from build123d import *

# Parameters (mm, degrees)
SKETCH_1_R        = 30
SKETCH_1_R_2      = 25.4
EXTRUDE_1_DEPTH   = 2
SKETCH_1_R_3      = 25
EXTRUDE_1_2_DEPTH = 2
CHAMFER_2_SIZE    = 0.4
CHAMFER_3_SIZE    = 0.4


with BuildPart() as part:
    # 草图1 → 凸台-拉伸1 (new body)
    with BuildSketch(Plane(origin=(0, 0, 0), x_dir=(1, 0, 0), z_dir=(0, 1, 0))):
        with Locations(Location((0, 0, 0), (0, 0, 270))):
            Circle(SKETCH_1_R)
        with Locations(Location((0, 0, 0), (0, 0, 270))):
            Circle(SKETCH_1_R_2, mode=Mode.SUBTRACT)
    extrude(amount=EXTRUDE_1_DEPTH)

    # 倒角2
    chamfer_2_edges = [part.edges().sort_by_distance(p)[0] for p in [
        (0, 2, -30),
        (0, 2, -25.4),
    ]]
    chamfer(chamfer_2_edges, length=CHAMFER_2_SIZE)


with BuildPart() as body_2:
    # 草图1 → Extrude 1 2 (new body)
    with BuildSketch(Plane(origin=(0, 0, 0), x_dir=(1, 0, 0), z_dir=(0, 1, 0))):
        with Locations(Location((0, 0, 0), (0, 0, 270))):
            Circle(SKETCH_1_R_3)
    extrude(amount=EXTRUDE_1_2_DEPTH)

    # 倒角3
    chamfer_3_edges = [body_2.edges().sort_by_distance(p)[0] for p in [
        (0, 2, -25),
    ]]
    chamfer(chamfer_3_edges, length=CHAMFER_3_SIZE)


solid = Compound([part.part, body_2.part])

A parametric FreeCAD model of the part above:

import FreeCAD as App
import Part
import Sketcher

V = App.Vector
Q = App.Units.Quantity


def edges_at(feature, points):
    """Names of the edges that pass closest to the given points."""
    edges = feature.Shape.Edges
    near = lambda p: min(range(len(edges)), key=lambda i: edges[i].distToShape(Part.Vertex(*p))[0])
    return sorted({f"Edge{near(p) + 1}" for p in points})

doc = App.newDocument("Part")
params = doc.addObject("Spreadsheet::Sheet", "Params")
for row, (alias, value) in enumerate([
    ("sketch1_diameter", "60 mm"),
    ("sketch1_diameter2", "50.8 mm"),
    ("pad1_length", "2 mm"),
    ("chamfer_size", "0.4 mm"),
    ("sketch2_diameter", "50 mm"),
    ("pad2_length", "2 mm"),
    ("chamfer2_size", "0.4 mm"),
], start=1):
    params.set(f"A{row}", alias)
    params.set(f"B{row}", "=" + value)
    params.setAlias(f"B{row}", alias)

body = doc.addObject("PartDesign::Body", "Body")

# Sketch on XZ plane
sketch1 = doc.addObject("Sketcher::SketchObject", "Sketch")
body.addObject(sketch1)
sketch1.AttachmentSupport = (doc.XZ_Plane, [""])
sketch1.MapMode = "FlatFace"
sketch1.addGeometry(Part.Circle(V(0, 0, 0), V(0, 0, 1), 30), False)
sketch1.addGeometry(Part.Circle(V(0, 0, 0), V(0, 0, 1), 25), False)
sketch1.addConstraint(Sketcher.Constraint("Coincident", 0, 3, -1, 1))
sketch1.addConstraint(Sketcher.Constraint("Coincident", 1, 3, -1, 1))
sketch1.addConstraint(Sketcher.Constraint("Diameter", 0, Q("60 mm")))
sketch1.addConstraint(Sketcher.Constraint("Diameter", 1, Q("50.8 mm")))
sketch1.setExpression("Constraints[2]", "Params.sketch1_diameter")
sketch1.setExpression("Constraints[3]", "Params.sketch1_diameter2")
pad1 = doc.addObject("PartDesign::Pad", "Pad")
body.addObject(pad1)
pad1.Profile = sketch1
pad1.setExpression("Length", "Params.pad1_length")
pad1.Reversed = True
doc.recompute()

chamfer = doc.addObject("PartDesign::Chamfer", "Chamfer")
body.addObject(chamfer)
chamfer.Base = (pad1, edges_at(pad1, [(0, 2, -30), (0, 2, -25.4)]))
chamfer.setExpression("Size", "Params.chamfer_size")
body2 = doc.addObject("PartDesign::Body", "Body001")

# Sketch on XZ plane
sketch2 = doc.addObject("Sketcher::SketchObject", "Sketch001")
body2.addObject(sketch2)
sketch2.AttachmentSupport = (doc.getObject("XZ_Plane001"), [""])
sketch2.MapMode = "FlatFace"
sketch2.addGeometry(Part.Circle(V(0, 0, 0), V(0, 0, 1), 25), False)
sketch2.addConstraint(Sketcher.Constraint("Coincident", 0, 3, -1, 1))
sketch2.addConstraint(Sketcher.Constraint("Diameter", 0, Q("50 mm")))
sketch2.setExpression("Constraints[1]", "Params.sketch2_diameter")
pad2 = doc.addObject("PartDesign::Pad", "Pad001")
body2.addObject(pad2)
pad2.Profile = sketch2
pad2.setExpression("Length", "Params.pad2_length")
pad2.Reversed = True
doc.recompute()

chamfer2 = doc.addObject("PartDesign::Chamfer", "Chamfer001")
body2.addObject(chamfer2)
chamfer2.Base = (pad2, edges_at(pad2, [(0, 2, -25)]))
chamfer2.setExpression("Size", "Params.chamfer2_size")

doc.recompute()
